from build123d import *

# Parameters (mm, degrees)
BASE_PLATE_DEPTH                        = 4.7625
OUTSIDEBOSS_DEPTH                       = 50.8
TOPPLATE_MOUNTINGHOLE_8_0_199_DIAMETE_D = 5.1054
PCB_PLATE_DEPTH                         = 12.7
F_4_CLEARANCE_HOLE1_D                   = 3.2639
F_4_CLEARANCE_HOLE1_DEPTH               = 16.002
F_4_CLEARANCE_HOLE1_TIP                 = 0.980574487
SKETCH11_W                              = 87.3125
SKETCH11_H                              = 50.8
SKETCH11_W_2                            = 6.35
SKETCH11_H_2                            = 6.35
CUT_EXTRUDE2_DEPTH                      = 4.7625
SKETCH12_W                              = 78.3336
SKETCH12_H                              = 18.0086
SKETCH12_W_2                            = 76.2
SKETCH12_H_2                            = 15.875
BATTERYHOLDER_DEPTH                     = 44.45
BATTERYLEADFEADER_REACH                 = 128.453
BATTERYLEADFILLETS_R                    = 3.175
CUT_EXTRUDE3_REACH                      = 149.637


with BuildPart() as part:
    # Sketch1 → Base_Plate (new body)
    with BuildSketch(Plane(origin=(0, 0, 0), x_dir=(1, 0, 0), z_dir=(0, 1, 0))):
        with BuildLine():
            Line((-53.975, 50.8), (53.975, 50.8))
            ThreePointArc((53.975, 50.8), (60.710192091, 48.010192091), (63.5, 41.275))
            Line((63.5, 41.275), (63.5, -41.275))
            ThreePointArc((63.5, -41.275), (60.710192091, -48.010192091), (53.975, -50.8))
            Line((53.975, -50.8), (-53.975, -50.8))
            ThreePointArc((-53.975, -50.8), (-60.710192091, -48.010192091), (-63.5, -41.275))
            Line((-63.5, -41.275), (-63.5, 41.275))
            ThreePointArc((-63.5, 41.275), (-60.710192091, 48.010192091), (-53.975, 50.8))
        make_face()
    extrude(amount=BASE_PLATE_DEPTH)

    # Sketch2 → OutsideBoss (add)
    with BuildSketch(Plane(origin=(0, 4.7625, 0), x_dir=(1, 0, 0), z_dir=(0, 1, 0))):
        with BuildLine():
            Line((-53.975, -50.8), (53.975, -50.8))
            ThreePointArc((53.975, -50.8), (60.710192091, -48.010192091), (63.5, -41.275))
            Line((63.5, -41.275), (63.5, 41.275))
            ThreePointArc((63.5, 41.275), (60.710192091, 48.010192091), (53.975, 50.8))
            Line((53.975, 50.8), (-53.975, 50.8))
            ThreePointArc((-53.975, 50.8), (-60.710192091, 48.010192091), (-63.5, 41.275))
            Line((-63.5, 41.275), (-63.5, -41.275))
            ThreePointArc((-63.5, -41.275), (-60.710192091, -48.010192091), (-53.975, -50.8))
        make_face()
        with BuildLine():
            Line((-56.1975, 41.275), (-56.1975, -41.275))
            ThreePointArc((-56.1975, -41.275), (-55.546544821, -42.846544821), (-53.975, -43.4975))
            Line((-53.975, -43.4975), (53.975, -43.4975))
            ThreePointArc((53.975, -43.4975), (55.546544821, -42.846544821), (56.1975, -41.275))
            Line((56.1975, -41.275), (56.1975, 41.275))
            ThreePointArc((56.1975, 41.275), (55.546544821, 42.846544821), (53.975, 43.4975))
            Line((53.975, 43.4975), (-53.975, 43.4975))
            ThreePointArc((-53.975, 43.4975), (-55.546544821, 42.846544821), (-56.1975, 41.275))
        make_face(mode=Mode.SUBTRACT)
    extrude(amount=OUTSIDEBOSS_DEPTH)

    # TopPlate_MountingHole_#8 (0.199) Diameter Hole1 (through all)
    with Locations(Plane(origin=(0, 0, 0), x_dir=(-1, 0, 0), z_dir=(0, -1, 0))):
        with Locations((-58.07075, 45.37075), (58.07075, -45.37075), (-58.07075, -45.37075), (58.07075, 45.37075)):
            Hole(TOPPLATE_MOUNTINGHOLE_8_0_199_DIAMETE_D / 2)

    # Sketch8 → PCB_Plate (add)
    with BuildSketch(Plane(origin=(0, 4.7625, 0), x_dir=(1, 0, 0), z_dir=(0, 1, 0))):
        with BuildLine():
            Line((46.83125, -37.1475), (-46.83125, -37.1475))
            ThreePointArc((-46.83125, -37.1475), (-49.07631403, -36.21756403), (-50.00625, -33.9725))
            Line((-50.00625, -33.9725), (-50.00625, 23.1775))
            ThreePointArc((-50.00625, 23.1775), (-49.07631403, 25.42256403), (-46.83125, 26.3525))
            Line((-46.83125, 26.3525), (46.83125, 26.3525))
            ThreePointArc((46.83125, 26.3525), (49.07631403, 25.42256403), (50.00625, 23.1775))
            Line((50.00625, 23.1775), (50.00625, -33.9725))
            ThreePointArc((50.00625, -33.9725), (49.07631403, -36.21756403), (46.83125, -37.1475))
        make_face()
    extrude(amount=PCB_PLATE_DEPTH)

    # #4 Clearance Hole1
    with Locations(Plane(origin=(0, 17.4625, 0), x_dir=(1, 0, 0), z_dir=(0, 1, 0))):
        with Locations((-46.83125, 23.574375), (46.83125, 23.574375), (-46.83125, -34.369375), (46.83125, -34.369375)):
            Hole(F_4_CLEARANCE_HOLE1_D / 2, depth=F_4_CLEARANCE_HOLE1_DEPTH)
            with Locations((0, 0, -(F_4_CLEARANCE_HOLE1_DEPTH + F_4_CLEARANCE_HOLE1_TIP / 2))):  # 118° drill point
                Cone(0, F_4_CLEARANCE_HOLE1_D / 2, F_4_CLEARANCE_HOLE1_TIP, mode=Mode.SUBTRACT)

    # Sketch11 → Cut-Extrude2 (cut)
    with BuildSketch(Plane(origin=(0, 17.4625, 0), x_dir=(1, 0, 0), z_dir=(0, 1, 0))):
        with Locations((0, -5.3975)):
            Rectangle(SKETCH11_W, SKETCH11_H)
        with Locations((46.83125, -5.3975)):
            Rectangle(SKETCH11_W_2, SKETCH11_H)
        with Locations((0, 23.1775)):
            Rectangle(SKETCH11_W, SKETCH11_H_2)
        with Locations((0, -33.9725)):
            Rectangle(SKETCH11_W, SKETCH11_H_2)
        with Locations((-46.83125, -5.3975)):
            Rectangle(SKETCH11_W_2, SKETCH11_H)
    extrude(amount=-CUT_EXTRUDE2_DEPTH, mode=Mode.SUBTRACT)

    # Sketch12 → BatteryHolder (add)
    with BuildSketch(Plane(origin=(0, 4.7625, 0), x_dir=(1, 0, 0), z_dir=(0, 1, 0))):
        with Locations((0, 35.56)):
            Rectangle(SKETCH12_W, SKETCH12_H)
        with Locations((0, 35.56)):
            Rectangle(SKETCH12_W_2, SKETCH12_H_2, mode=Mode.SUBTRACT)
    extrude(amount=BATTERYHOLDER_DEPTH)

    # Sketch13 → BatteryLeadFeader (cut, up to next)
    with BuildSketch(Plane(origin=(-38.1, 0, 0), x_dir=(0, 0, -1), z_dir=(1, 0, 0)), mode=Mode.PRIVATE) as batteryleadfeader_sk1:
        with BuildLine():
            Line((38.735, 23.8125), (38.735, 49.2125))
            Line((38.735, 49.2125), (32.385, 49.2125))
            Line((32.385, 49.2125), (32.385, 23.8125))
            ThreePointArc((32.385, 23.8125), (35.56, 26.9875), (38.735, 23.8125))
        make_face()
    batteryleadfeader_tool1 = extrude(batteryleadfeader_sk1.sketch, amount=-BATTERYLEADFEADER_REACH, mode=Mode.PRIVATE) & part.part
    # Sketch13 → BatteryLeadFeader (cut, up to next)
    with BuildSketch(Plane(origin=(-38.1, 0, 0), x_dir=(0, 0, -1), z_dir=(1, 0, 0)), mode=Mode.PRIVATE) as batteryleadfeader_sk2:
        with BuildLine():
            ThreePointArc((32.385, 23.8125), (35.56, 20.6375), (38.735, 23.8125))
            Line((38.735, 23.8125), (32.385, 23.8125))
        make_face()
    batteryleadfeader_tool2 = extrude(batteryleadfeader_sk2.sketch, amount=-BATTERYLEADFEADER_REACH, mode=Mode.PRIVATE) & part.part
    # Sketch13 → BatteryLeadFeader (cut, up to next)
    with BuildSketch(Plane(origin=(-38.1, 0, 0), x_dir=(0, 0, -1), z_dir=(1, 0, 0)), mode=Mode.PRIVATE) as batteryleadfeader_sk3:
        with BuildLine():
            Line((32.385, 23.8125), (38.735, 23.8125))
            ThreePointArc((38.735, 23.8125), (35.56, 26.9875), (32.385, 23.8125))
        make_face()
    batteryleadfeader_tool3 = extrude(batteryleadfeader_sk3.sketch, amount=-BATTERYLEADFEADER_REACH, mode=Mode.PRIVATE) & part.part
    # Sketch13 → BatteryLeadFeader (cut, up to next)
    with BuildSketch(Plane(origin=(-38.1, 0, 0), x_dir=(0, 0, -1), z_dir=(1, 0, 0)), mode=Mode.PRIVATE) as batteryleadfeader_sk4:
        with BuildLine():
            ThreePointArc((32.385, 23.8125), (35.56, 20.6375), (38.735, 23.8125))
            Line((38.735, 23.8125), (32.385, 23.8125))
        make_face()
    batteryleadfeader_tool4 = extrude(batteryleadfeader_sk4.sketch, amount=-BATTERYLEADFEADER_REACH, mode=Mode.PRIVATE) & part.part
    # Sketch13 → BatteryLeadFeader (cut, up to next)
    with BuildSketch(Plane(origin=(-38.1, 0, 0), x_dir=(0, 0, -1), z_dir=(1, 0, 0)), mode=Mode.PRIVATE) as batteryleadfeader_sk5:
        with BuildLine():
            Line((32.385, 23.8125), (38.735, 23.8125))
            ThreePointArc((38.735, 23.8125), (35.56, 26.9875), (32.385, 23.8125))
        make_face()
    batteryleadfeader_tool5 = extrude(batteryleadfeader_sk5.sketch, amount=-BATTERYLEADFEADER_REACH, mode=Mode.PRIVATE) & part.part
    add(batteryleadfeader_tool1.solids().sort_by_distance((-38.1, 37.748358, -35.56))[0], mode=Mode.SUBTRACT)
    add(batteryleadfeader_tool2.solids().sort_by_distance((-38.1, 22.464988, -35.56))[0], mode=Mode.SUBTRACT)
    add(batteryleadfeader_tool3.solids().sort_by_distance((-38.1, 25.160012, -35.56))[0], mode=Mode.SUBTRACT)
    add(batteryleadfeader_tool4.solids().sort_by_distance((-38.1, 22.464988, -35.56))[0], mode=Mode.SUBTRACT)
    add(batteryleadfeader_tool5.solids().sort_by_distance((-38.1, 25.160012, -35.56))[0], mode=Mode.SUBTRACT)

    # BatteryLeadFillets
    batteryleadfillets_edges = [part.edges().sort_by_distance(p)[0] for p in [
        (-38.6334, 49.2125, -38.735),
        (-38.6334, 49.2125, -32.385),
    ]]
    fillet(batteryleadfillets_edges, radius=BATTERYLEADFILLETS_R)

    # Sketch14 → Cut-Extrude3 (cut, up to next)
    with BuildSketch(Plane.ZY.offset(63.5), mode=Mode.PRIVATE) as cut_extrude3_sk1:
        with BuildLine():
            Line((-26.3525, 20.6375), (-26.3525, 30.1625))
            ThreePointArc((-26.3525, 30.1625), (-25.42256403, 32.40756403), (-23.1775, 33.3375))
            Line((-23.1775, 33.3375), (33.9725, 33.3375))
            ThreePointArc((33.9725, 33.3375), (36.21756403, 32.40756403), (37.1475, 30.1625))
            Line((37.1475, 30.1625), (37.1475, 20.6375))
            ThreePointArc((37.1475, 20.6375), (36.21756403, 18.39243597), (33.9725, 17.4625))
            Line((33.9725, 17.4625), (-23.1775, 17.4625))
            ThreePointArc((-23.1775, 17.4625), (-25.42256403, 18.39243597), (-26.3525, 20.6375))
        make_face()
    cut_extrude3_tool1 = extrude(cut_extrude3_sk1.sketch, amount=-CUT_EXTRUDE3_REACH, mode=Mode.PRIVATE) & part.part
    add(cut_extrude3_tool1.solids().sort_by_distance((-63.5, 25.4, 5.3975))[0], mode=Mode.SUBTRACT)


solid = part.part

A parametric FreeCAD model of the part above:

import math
import FreeCAD as App
import Part
import Sketcher
from FreeCAD import Vector
Q = App.Units.Quantity


def edges_at(feature, points):
    """Names of the edges that pass closest to the given points."""
    edges = feature.Shape.Edges
    near = lambda p: min(range(len(edges)), key=lambda i: edges[i].distToShape(Part.Vertex(*p))[0])
    return sorted({f"Edge{near(p) + 1}" for p in points})

doc = App.newDocument("Part")
body = doc.addObject("PartDesign::Body", "Body")
body.AllowCompound = True

sketch1 = body.newObject("Sketcher::SketchObject", "Sketch")
sketch1.AttachmentSupport = (doc.getObject("XZ_Plane"), [""])
sketch1.MapMode = "FlatFace"
sketch1.addGeometry([
    Part.LineSegment(Vector(54, -51, 0), Vector(-54, -51, 0)),
    Part.ArcOfCircle(Part.Circle(Vector(-54, -41, 0), Vector(0, 0, 1), 10), math.radians(180), math.radians(270)),
    Part.LineSegment(Vector(-64, -41, 0), Vector(-64, 41, 0)),
    Part.ArcOfCircle(Part.Circle(Vector(-54, 41, 0), Vector(0, 0, 1), 10), math.radians(90), math.radians(180)),
    Part.LineSegment(Vector(-54, 51, 0), Vector(54, 51, 0)),
    Part.ArcOfCircle(Part.Circle(Vector(54, 41, 0), Vector(0, 0, 1), 10), math.radians(0), math.radians(90)),
    Part.LineSegment(Vector(64, 41, 0), Vector(64, -41, 0)),
    Part.ArcOfCircle(Part.Circle(Vector(54, -41, 0), Vector(0, 0, 1), 10), math.radians(-90), math.radians(0)),
], False)
sketch1.addConstraint([
    Sketcher.Constraint("Tangent", 0, 2, 1, 2),
    Sketcher.Constraint("Tangent", 1, 1, 2, 1),
    Sketcher.Constraint("Tangent", 2, 2, 3, 2),
    Sketcher.Constraint("Tangent", 3, 1, 4, 1),
    Sketcher.Constraint("Tangent", 4, 2, 5, 2),
    Sketcher.Constraint("Tangent", 5, 1, 6, 1),
    Sketcher.Constraint("Tangent", 6, 2, 7, 2),
    Sketcher.Constraint("Tangent", 7, 1, 0, 1),
    Sketcher.Constraint("Horizontal", 0),
    Sketcher.Constraint("Vertical", 2),
    Sketcher.Constraint("Horizontal", 4),
    Sketcher.Constraint("Vertical", 6),
    Sketcher.Constraint("Equal", 1, 3),
    Sketcher.Constraint("Equal", 3, 5),
    Sketcher.Constraint("Equal", 5, 7),
    Sketcher.Constraint("Symmetric", 1, 3, 5, 3, -1, 1),
    Sketcher.Constraint("DistanceY", 0, 2, -1, 1, Q("2 in")),
    Sketcher.Constraint("Radius", 1, Q("0.375 in")),
    Sketcher.Constraint("DistanceX", 0, 2, 0, 1, Q("4.25 in")),
])
pad1 = body.newObject("PartDesign::Pad", "Pad")
pad1.Profile = sketch1
pad1.Length = Q("0.1875 in")
pad1.Reversed = True

sketch2 = body.newObject("Sketcher::SketchObject", "Sketch001")
sketch2.AttachmentSupport = (doc.getObject("XZ_Plane"), [""])
sketch2.MapMode = "FlatFace"
sketch2.AttachmentOffset = App.Placement(Vector(0, 0, -0.1875 * 25.4), App.Rotation())
sketch2.addGeometry([
    Part.LineSegment(Vector(-54, 50.8, 0), Vector(54, 50.8, 0)),
    Part.ArcOfCircle(Part.Circle(Vector(54, 41.3, 0), Vector(0, 0, 1), 9.5), math.radians(0), math.radians(90)),
    Part.LineSegment(Vector(63.5, 41.3, 0), Vector(63.5, -41.3, 0)),
    Part.ArcOfCircle(Part.Circle(Vector(54, -41.3, 0), Vector(0, 0, 1), 9.5), math.radians(-90), math.radians(0)),
    Part.LineSegment(Vector(54, -50.8, 0), Vector(-54, -50.8, 0)),
    Part.ArcOfCircle(Part.Circle(Vector(-54, -41.3, 0), Vector(0, 0, 1), 9.5), math.radians(180), math.radians(270)),
    Part.LineSegment(Vector(-63.5, -41.3, 0), Vector(-63.5, 41.3, 0)),
    Part.ArcOfCircle(Part.Circle(Vector(-54, 41.3, 0), Vector(0, 0, 1), 9.5), math.radians(90), math.radians(180)),
    Part.LineSegment(Vector(-56.2, 41.3, 0), Vector(-56.2, -41.3, 0)),
    Part.ArcOfCircle(Part.Circle(Vector(-54, -41.3, 0), Vector(0, 0, 1), 2.2), math.radians(-180), math.radians(-90)),
    Part.LineSegment(Vector(-54, -43.5, 0), Vector(54, -43.5, 0)),
    Part.ArcOfCircle(Part.Circle(Vector(54, -41.3, 0), Vector(0, 0, 1), 2.2), math.radians(-90), math.radians(0)),
    Part.LineSegment(Vector(56.2, -41.3, 0), Vector(56.2, 41.3, 0)),
    Part.ArcOfCircle(Part.Circle(Vector(54, 41.3, 0), Vector(0, 0, 1), 2.2), math.radians(0), math.radians(90)),
    Part.LineSegment(Vector(54, 43.5, 0), Vector(-54, 43.5, 0)),
    Part.ArcOfCircle(Part.Circle(Vector(-54, 41.3, 0), Vector(0, 0, 1), 2.2), math.radians(90), math.radians(180)),
], False)
sketch2.addConstraint([
    Sketcher.Constraint("Tangent", 0, 2, 1, 2),
    Sketcher.Constraint("Tangent", 1, 1, 2, 1),
    Sketcher.Constraint("Tangent", 2, 2, 3, 2),
    Sketcher.Constraint("Tangent", 3, 1, 4, 1),
    Sketcher.Constraint("Tangent", 4, 2, 5, 2),
    Sketcher.Constraint("Tangent", 5, 1, 6, 1),
    Sketcher.Constraint("Tangent", 6, 2, 7, 2),
    Sketcher.Constraint("Tangent", 7, 1, 0, 1),
    Sketcher.Constraint("Tangent", 8, 2, 9, 1),
    Sketcher.Constraint("Tangent", 9, 2, 10, 1),
    Sketcher.Constraint("Tangent", 10, 2, 11, 1),
    Sketcher.Constraint("Tangent", 11, 2, 12, 1),
    Sketcher.Constraint("Tangent", 12, 2, 13, 1),
    Sketcher.Constraint("Tangent", 13, 2, 14, 1),
    Sketcher.Constraint("Tangent", 14, 2, 15, 1),
    Sketcher.Constraint("Tangent", 15, 2, 8, 1),
    Sketcher.Constraint("Horizontal", 0),
    Sketcher.Constraint("Vertical", 2),
    Sketcher.Constraint("Horizontal", 4),
    Sketcher.Constraint("Vertical", 6),
    Sketcher.Constraint("Vertical", 8),
    Sketcher.Constraint("Horizontal", 10),
    Sketcher.Constraint("Vertical", 12),
    Sketcher.Constraint("Horizontal", 14),
    Sketcher.Constraint("Coincident", 9, 3, 5, 3),
    Sketcher.Constraint("Coincident", 11, 3, 3, 3),
    Sketcher.Constraint("Coincident", 13, 3, 1, 3),
    Sketcher.Constraint("Equal", 1, 3),
    Sketcher.Constraint("Equal", 3, 5),
    Sketcher.Constraint("Equal", 5, 7),
    Sketcher.Constraint("Equal", 13, 15),
    Sketcher.Constraint("Symmetric", 1, 3, 5, 3, -1, 1),
    Sketcher.Constraint("DistanceY", -1, 1, 0, 2, Q("2 in")),
    Sketcher.Constraint("Radius", 1, Q("0.375 in")),
    Sketcher.Constraint("DistanceX", 0, 1, 0, 2, Q("4.25 in")),
    Sketcher.Constraint("Radius", 9, Q("0.0875 in")),
])
pad2 = body.newObject("PartDesign::Pad", "Pad001")
pad2.Profile = sketch2
pad2.Length = Q("2 in")
pad2.Reversed = True

sketch3 = body.newObject("Sketcher::SketchObject", "Sketch002")
sketch3.AttachmentSupport = (doc.getObject("XZ_Plane"), [""])
sketch3.MapMode = "FlatFace"
sketch3.addGeometry([
    Part.Circle(Vector(58.1, -45.4, 0), Vector(0, 0, 1), 2.6),
    Part.Circle(Vector(-58.1, 45.4, 0), Vector(0, 0, 1), 2.6),
    Part.Circle(Vector(58.1, 45.4, 0), Vector(0, 0, 1), 2.6),
    Part.Circle(Vector(-58.1, -45.4, 0), Vector(0, 0, 1), 2.6),
], False)
sketch3.addConstraint([
    Sketcher.Constraint("Equal", 0, 1),
    Sketcher.Constraint("Equal", 1, 2),
    Sketcher.Constraint("Equal", 2, 3),
    Sketcher.Constraint("Symmetric", 0, 3, 1, 3, -1, 1),
    Sketcher.Constraint("Symmetric", 2, 3, 3, 3, -1, 1),
    Sketcher.Constraint("Symmetric", 1, 3, 2, 3, -2),
    Sketcher.Constraint("Diameter", 0, Q("0.201 in")),
    Sketcher.Constraint("DistanceX", 1, 3, 0, 3, Q("4.5725 in")),
    Sketcher.Constraint("DistanceY", 0, 3, 1, 3, Q("3.5725 in")),
])
doc.recompute()
hole = body.newObject("PartDesign::Hole", "Hole")
hole.Profile = sketch3
hole.ThreadType = "None"
hole.Diameter = Q("0.201 in")
hole.DepthType = "ThroughAll"

sketch4 = body.newObject("Sketcher::SketchObject", "Sketch003")
sketch4.AttachmentSupport = (doc.getObject("XZ_Plane"), [""])
sketch4.MapMode = "FlatFace"
sketch4.AttachmentOffset = App.Placement(Vector(0, 0, -0.1875 * 25.4), App.Rotation())
sketch4.addGeometry([
    Part.LineSegment(Vector(-46.8, 37.1, 0), Vector(46.8, 37.1, 0)),
    Part.ArcOfCircle(Part.Circle(Vector(46.8, 34, 0), Vector(0, 0, 1), 3.2), math.radians(0), math.radians(90)),
    Part.LineSegment(Vector(50, 34, 0), Vector(50, -23.2, 0)),
    Part.ArcOfCircle(Part.Circle(Vector(46.8, -23.2, 0), Vector(0, 0, 1), 3.2), math.radians(-90), math.radians(0)),
    Part.LineSegment(Vector(46.8, -26.4, 0), Vector(-46.8, -26.4, 0)),
    Part.ArcOfCircle(Part.Circle(Vector(-46.8, -23.2, 0), Vector(0, 0, 1), 3.2), math.radians(-180), math.radians(-90)),
    Part.LineSegment(Vector(-50, -23.2, 0), Vector(-50, 34, 0)),
    Part.ArcOfCircle(Part.Circle(Vector(-46.8, 34, 0), Vector(0, 0, 1), 3.2), math.radians(90), math.radians(180)),
], False)
sketch4.addConstraint([
    Sketcher.Constraint("Tangent", 0, 2, 1, 2),
    Sketcher.Constraint("Tangent", 1, 1, 2, 1),
    Sketcher.Constraint("Tangent", 2, 2, 3, 2),
    Sketcher.Constraint("Tangent", 3, 1, 4, 1),
    Sketcher.Constraint("Tangent", 4, 2, 5, 2),
    Sketcher.Constraint("Tangent", 5, 1, 6, 1),
    Sketcher.Constraint("Tangent", 6, 2, 7, 2),
    Sketcher.Constraint("Tangent", 7, 1, 0, 1),
    Sketcher.Constraint("Horizontal", 0),
    Sketcher.Constraint("Vertical", 2),
    Sketcher.Constraint("Horizontal", 4),
    Sketcher.Constraint("Vertical", 6),
    Sketcher.Constraint("Equal", 1, 3),
    Sketcher.Constraint("Equal", 3, 5),
    Sketcher.Constraint("Equal", 5, 7),
    Sketcher.Constraint("Radius", 1, Q("0.125 in")),
    Sketcher.Constraint("DistanceY", 2, 2, 2, 1, Q("2.25 in")),
    Sketcher.Constraint("DistanceX", 0, 1, 0, 2, Q("3.6875 in")),
    Sketcher.Constraint("DistanceX", -1, 1, 1, 3, Q("1.84375 in")),
    Sketcher.Constraint("DistanceY", -1, 1, 1, 3, Q("1.3375 in")),
])
pad3 = body.newObject("PartDesign::Pad", "Pad002")
pad3.Profile = sketch4
pad3.Length = Q("0.5 in")
pad3.Reversed = True

sketch5 = body.newObject("Sketcher::SketchObject", "Sketch004")
sketch5.AttachmentSupport = (doc.getObject("XZ_Plane"), [""])
sketch5.MapMode = "FlatFace"
sketch5.AttachmentOffset = App.Placement(Vector(0, 0, -0.6875 * 25.4), App.Rotation())
sketch5.addGeometry([
    Part.Circle(Vector(-46.8, -23.6, 0), Vector(0, 0, 1), 1.6),
    Part.Circle(Vector(46.8, -23.6, 0), Vector(0, 0, 1), 1.6),
    Part.Circle(Vector(-46.8, 34.4, 0), Vector(0, 0, 1), 1.6),
    Part.Circle(Vector(46.8, 34.4, 0), Vector(0, 0, 1), 1.6),
], False)
sketch5.addConstraint([
    Sketcher.Constraint("Equal", 0, 1),
    Sketcher.Constraint("Equal", 1, 2),
    Sketcher.Constraint("Equal", 2, 3),
    Sketcher.Constraint("Symmetric", 0, 3, 1, 3, -2),
    Sketcher.Constraint("Symmetric", 2, 3, 3, 3, -2),
    Sketcher.Constraint("Vertical", 0, 3, 2, 3),
    Sketcher.Constraint("Diameter", 0, Q("0.1285 in")),
    Sketcher.Constraint("DistanceX", 0, 3, -1, 1, Q("1.84375 in")),
    Sketcher.Constraint("DistanceY", 0, 3, 2, 3, Q("2.28125 in")),
    Sketcher.Constraint("DistanceY", 0, 3, -1, 1, 23.574375),
])
doc.recompute()
hole2 = body.newObject("PartDesign::Hole", "Hole001")
hole2.Profile = sketch5
hole2.ThreadType = "None"
hole2.Diameter = Q("0.1285 in")
hole2.DepthType = "Dimension"
hole2.Depth = Q("0.63 in")
hole2.DrillPoint = "Angled"
hole2.DrillPointAngle = 118
hole2.Reversed = True

sketch6 = body.newObject("Sketcher::SketchObject", "Sketch005")
sketch6.AttachmentSupport = (doc.getObject("XZ_Plane"), [""])
sketch6.MapMode = "FlatFace"
sketch6.AttachmentOffset = App.Placement(Vector(0, 0, -0.6875 * 25.4), App.Rotation())
sketch6.addGeometry([
    Part.LineSegment(Vector(44, 31, 0), Vector(50, 31, 0)),
    Part.LineSegment(Vector(50, 31, 0), Vector(50, -20, 0)),
    Part.LineSegment(Vector(50, -20, 0), Vector(44, -20, 0)),
    Part.LineSegment(Vector(44, -20, 0), Vector(44, -26, 0)),
    Part.LineSegment(Vector(44, -26, 0), Vector(-44, -26, 0)),
    Part.LineSegment(Vector(-44, -26, 0), Vector(-44, -20, 0)),
    Part.LineSegment(Vector(-44, -20, 0), Vector(-50, -20, 0)),
    Part.LineSegment(Vector(-50, -20, 0), Vector(-50, 31, 0)),
    Part.LineSegment(Vector(-50, 31, 0), Vector(-44, 31, 0)),
    Part.LineSegment(Vector(-44, 31, 0), Vector(-44, 37, 0)),
    Part.LineSegment(Vector(-44, 37, 0), Vector(44, 37, 0)),
    Part.LineSegment(Vector(44, 37, 0), Vector(44, 31, 0)),
], False)
sketch6.addConstraint([
    Sketcher.Constraint("Coincident", 0, 2, 1, 1),
    Sketcher.Constraint("Coincident", 1, 2, 2, 1),
    Sketcher.Constraint("Coincident", 2, 2, 3, 1),
    Sketcher.Constraint("Coincident", 3, 2, 4, 1),
    Sketcher.Constraint("Coincident", 4, 2, 5, 1),
    Sketcher.Constraint("Coincident", 5, 2, 6, 1),
    Sketcher.Constraint("Coincident", 6, 2, 7, 1),
    Sketcher.Constraint("Coincident", 7, 2, 8, 1),
    Sketcher.Constraint("Coincident", 8, 2, 9, 1),
    Sketcher.Constraint("Coincident", 9, 2, 10, 1),
    Sketcher.Constraint("Coincident", 10, 2, 11, 1),
    Sketcher.Constraint("Coincident", 11, 2, 0, 1),
    Sketcher.Constraint("Horizontal", 0),
    Sketcher.Constraint("Vertical", 1),
    Sketcher.Constraint("Horizontal", 2),
    Sketcher.Constraint("Vertical", 3),
    Sketcher.Constraint("Horizontal", 4),
    Sketcher.Constraint("Vertical", 5),
    Sketcher.Constraint("Horizontal", 6),
    Sketcher.Constraint("Vertical", 7),
    Sketcher.Constraint("Horizontal", 8),
    Sketcher.Constraint("Vertical", 9),
    Sketcher.Constraint("Horizontal", 10),
    Sketcher.Constraint("Vertical", 11),
    Sketcher.Constraint("Symmetric", 2, 2, 5, 2, -2),
    Sketcher.Constraint("Symmetric", 0, 2, 7, 2, -2),
    Sketcher.Constraint("Vertical", 5, 2, 8, 2),
    Sketcher.Constraint("Vertical", 3, 2, 10, 2),
    Sketcher.Constraint("Equal", 8, 3),
    Sketcher.Constraint("Equal", 5, 9),
    Sketcher.Constraint("DistanceY", 1, 2, 1, 1, Q("2 in")),
    Sketcher.Constraint("DistanceX", 0, 1, 0, 2, Q("0.25 in")),
    Sketcher.Constraint("DistanceX", 4, 2, 4, 1, Q("3.4375 in")),
    Sketcher.Constraint("DistanceY", -1, 1, 0, 2, Q("1.2125 in")),
])
pocket1 = body.newObject("PartDesign::Pocket", "Pocket")
pocket1.Profile = sketch6
pocket1.Length = Q("0.1875 in")
pocket1.Reversed = True

sketch7 = body.newObject("Sketcher::SketchObject", "Sketch006")
sketch7.AttachmentSupport = (doc.getObject("XZ_Plane"), [""])
sketch7.MapMode = "FlatFace"
sketch7.AttachmentOffset = App.Placement(Vector(0, 0, -0.1875 * 25.4), App.Rotation())
sketch7.addGeometry([
    Part.LineSegment(Vector(-39, -45, 0), Vector(-39, -27, 0)),
    Part.LineSegment(Vector(-39, -27, 0), Vector(39, -27, 0)),
    Part.LineSegment(Vector(39, -27, 0), Vector(39, -45, 0)),
    Part.LineSegment(Vector(39, -45, 0), Vector(-39, -45, 0)),
    Part.LineSegment(Vector(38, -28, 0), Vector(-38, -28, 0)),
    Part.LineSegment(Vector(-38, -28, 0), Vector(-38, -43, 0)),
    Part.LineSegment(Vector(-38, -43, 0), Vector(38, -43, 0)),
    Part.LineSegment(Vector(38, -43, 0), Vector(38, -28, 0)),
], False)
sketch7.addConstraint([
    Sketcher.Constraint("Coincident", 0, 2, 1, 1),
    Sketcher.Constraint("Coincident", 1, 2, 2, 1),
    Sketcher.Constraint("Coincident", 2, 2, 3, 1),
    Sketcher.Constraint("Coincident", 3, 2, 0, 1),
    Sketcher.Constraint("Coincident", 4, 2, 5, 1),
    Sketcher.Constraint("Coincident", 5, 2, 6, 1),
    Sketcher.Constraint("Coincident", 6, 2, 7, 1),
    Sketcher.Constraint("Coincident", 7, 2, 4, 1),
    Sketcher.Constraint("Vertical", 0),
    Sketcher.Constraint("Horizontal", 1),
    Sketcher.Constraint("Vertical", 2),
    Sketcher.Constraint("Horizontal", 3),
    Sketcher.Constraint("Horizontal", 4),
    Sketcher.Constraint("Vertical", 5),
    Sketcher.Constraint("Horizontal", 6),
    Sketcher.Constraint("Vertical", 7),
    Sketcher.Constraint("DistanceX", 4, 2, 4, 1, Q("3 in")),
    Sketcher.Constraint("DistanceX", 4, 2, -1, 1, Q("1.5 in")),
    Sketcher.Constraint("DistanceX", 1, 1, 1, 2, Q("3.084 in")),
    Sketcher.Constraint("DistanceY", 0, 1, 0, 2, Q("0.709 in")),
    Sketcher.Constraint("DistanceY", 5, 2, 5, 1, Q("0.625 in")),
    Sketcher.Constraint("DistanceX", 0, 2, -1, 1, Q("1.542 in")),
    Sketcher.Constraint("DistanceY", 4, 2, 0, 2, Q("0.042 in")),
    Sketcher.Constraint("DistanceY", 0, 2, -1, 1, Q("1.0455 in")),
])
pad4 = body.newObject("PartDesign::Pad", "Pad003")
pad4.Profile = sketch7
pad4.Length = Q("1.75 in")
pad4.Reversed = True

sketch8 = body.newObject("Sketcher::SketchObject", "Sketch007")
sketch8.AttachmentSupport = (doc.getObject("YZ_Plane"), [""])
sketch8.MapMode = "FlatFace"
sketch8.AttachmentOffset = App.Placement(Vector(0, 0, -1.5 * 25.4), App.Rotation())
sketch8.addGeometry([
    Part.LineSegment(Vector(23.8, -38.7, 0), Vector(49.2, -38.7, 0)),
    Part.LineSegment(Vector(49.2, -38.7, 0), Vector(49.2, -32.4, 0)),
    Part.LineSegment(Vector(49.2, -32.4, 0), Vector(23.8, -32.4, 0)),
    Part.ArcOfCircle(Part.Circle(Vector(23.8, -35.6, 0), Vector(0, 0, 1), 3.2), math.radians(-90), math.radians(90)),
], False)
sketch8.addConstraint([
    Sketcher.Constraint("Coincident", 0, 2, 1, 1),
    Sketcher.Constraint("Coincident", 1, 2, 2, 1),
    Sketcher.Constraint("Tangent", 2, 2, 3, 2),
    Sketcher.Constraint("Tangent", 3, 1, 0, 1),
    Sketcher.Constraint("Horizontal", 0),
    Sketcher.Constraint("Vertical", 1),
    Sketcher.Constraint("Horizontal", 2),
    Sketcher.Constraint("DistanceX", 0, 1, 0, 2, Q("1 in")),
    Sketcher.Constraint("Radius", 3, Q("0.125 in")),
    Sketcher.Constraint("DistanceY", 3, 3, -1, 1, Q("1.4 in")),
    Sketcher.Constraint("DistanceX", -1, 1, 3, 3, Q("0.9375 in")),
])
pocket2 = body.newObject("PartDesign::Pocket", "Pocket001")
pocket2.Profile = sketch8
pocket2.Type = "UpToFirst"

sketch9 = body.newObject("Sketcher::SketchObject", "Sketch008")
sketch9.AttachmentSupport = (doc.getObject("YZ_Plane"), [""])
sketch9.MapMode = "FlatFace"
sketch9.AttachmentOffset = App.Placement(Vector(0, 0, -1.5 * 25.4), App.Rotation())
sketch9.addGeometry([
    Part.ArcOfCircle(Part.Circle(Vector(23.8, -35.6, 0), Vector(0, 0, 1), 3.2), math.radians(90), math.radians(270)),
    Part.LineSegment(Vector(23.8, -38.7, 0), Vector(23.8, -32.4, 0)),
], False)
sketch9.addConstraint([
    Sketcher.Constraint("Coincident", 0, 1, 1, 2),
    Sketcher.Constraint("Coincident", 1, 1, 0, 2),
    Sketcher.Constraint("Vertical", 1),
    Sketcher.Constraint("Radius", 0, Q("0.125 in")),
    Sketcher.Constraint("DistanceY", 0, 3, -1, 1, Q("1.4 in")),
    Sketcher.Constraint("DistanceX", -1, 1, 0, 3, Q("0.9375 in")),
    Sketcher.Constraint("DistanceX", -1, 1, 0, 1, Q("0.9375 in")),
])
pocket3 = body.newObject("PartDesign::Pocket", "Pocket002")
pocket3.Profile = sketch9
pocket3.Type = "UpToFirst"

sketch10 = body.newObject("Sketcher::SketchObject", "Sketch009")
sketch10.AttachmentSupport = (doc.getObject("YZ_Plane"), [""])
sketch10.MapMode = "FlatFace"
sketch10.AttachmentOffset = App.Placement(Vector(0, 0, -1.5 * 25.4), App.Rotation())
sketch10.addGeometry([
    Part.LineSegment(Vector(23.8, -32.4, 0), Vector(23.8, -38.7, 0)),
    Part.ArcOfCircle(Part.Circle(Vector(23.8, -35.6, 0), Vector(0, 0, 1), 3.2), math.radians(-90), math.radians(90)),
], False)
sketch10.addConstraint([
    Sketcher.Constraint("Coincident", 0, 1, 1, 2),
    Sketcher.Constraint("Coincident", 1, 1, 0, 2),
    Sketcher.Constraint("Vertical", 0),
    Sketcher.Constraint("Vertical", 1, 3, 0, 1),
    Sketcher.Constraint("Radius", 1, Q("0.125 in")),
    Sketcher.Constraint("DistanceY", 1, 3, -1, 1, Q("1.4 in")),
    Sketcher.Constraint("DistanceX", -1, 1, 1, 3, Q("0.9375 in")),
])
pocket4 = body.newObject("PartDesign::Pocket", "Pocket003")
pocket4.Profile = sketch10
pocket4.Type = "UpToFirst"

sketch11 = body.newObject("Sketcher::SketchObject", "Sketch010")
sketch11.AttachmentSupport = (doc.getObject("YZ_Plane"), [""])
sketch11.MapMode = "FlatFace"
sketch11.AttachmentOffset = App.Placement(Vector(0, 0, -1.5 * 25.4), App.Rotation())
sketch11.addGeometry([
    Part.ArcOfCircle(Part.Circle(Vector(23.8, -35.6, 0), Vector(0, 0, 1), 3.2), math.radians(90), math.radians(270)),
    Part.LineSegment(Vector(23.8, -38.7, 0), Vector(23.8, -32.4, 0)),
], False)
sketch11.addConstraint([
    Sketcher.Constraint("Coincident", 0, 1, 1, 2),
    Sketcher.Constraint("Coincident", 1, 1, 0, 2),
    Sketcher.Constraint("Vertical", 1),
    Sketcher.Constraint("Radius", 0, Q("0.125 in")),
    Sketcher.Constraint("DistanceY", 0, 3, -1, 1, Q("1.4 in")),
    Sketcher.Constraint("DistanceX", -1, 1, 0, 3, Q("0.9375 in")),
    Sketcher.Constraint("DistanceX", -1, 1, 0, 1, Q("0.9375 in")),
])
pocket5 = body.newObject("PartDesign::Pocket", "Pocket004")
pocket5.Profile = sketch11
pocket5.Type = "UpToFirst"

sketch12 = body.newObject("Sketcher::SketchObject", "Sketch011")
sketch12.AttachmentSupport = (doc.getObject("YZ_Plane"), [""])
sketch12.MapMode = "FlatFace"
sketch12.AttachmentOffset = App.Placement(Vector(0, 0, -1.5 * 25.4), App.Rotation())
sketch12.addGeometry([
    Part.LineSegment(Vector(23.8, -32.4, 0), Vector(23.8, -38.7, 0)),
    Part.ArcOfCircle(Part.Circle(Vector(23.8, -35.6, 0), Vector(0, 0, 1), 3.2), math.radians(-90), math.radians(90)),
], False)
sketch12.addConstraint([
    Sketcher.Constraint("Coincident", 0, 1, 1, 2),
    Sketcher.Constraint("Coincident", 1, 1, 0, 2),
    Sketcher.Constraint("Vertical", 0),
    Sketcher.Constraint("Vertical", 1, 3, 0, 1),
    Sketcher.Constraint("Radius", 1, Q("0.125 in")),
    Sketcher.Constraint("DistanceY", 1, 3, -1, 1, Q("1.4 in")),
    Sketcher.Constraint("DistanceX", -1, 1, 1, 3, Q("0.9375 in")),
])
pocket6 = body.newObject("PartDesign::Pocket", "Pocket005")
pocket6.Profile = sketch12
pocket6.Type = "UpToFirst"
doc.recompute()

fillet = body.newObject("PartDesign::Fillet", "Fillet")
fillet.Base = (pocket6, edges_at(pocket6, [(-38.633, 49.212, -38.735), (-38.633, 49.212, -32.385)]))
fillet.Radius = Q("0.125 in")

sketch13 = body.newObject("Sketcher::SketchObject", "Sketch012")
sketch13.AttachmentSupport = (doc.getObject("YZ_Plane"), [""])
sketch13.MapMode = "FlatFace"
sketch13.AttachmentOffset = App.Placement(Vector(0, 0, -2.5 * 25.4), App.Rotation())
sketch13.addGeometry([
    Part.LineSegment(Vector(30.2, -26.4, 0), Vector(20.6, -26.4, 0)),
    Part.ArcOfCircle(Part.Circle(Vector(20.6, -23.2, 0), Vector(0, 0, 1), 3.2), math.radians(-180), math.radians(-90)),
    Part.LineSegment(Vector(17.5, -23.2, 0), Vector(17.5, 34, 0)),
    Part.ArcOfCircle(Part.Circle(Vector(20.6, 34, 0), Vector(0, 0, 1), 3.2), math.radians(90), math.radians(180)),
    Part.LineSegment(Vector(20.6, 37.1, 0), Vector(30.2, 37.1, 0)),
    Part.ArcOfCircle(Part.Circle(Vector(30.2, 34, 0), Vector(0, 0, 1), 3.2), math.radians(0), math.radians(90)),
    Part.LineSegment(Vector(33.3, 34, 0), Vector(33.3, -23.2, 0)),
    Part.ArcOfCircle(Part.Circle(Vector(30.2, -23.2, 0), Vector(0, 0, 1), 3.2), math.radians(-90), math.radians(0)),
], False)
sketch13.addConstraint([
    Sketcher.Constraint("Tangent", 0, 2, 1, 2),
    Sketcher.Constraint("Tangent", 1, 1, 2, 1),
    Sketcher.Constraint("Tangent", 2, 2, 3, 2),
    Sketcher.Constraint("Tangent", 3, 1, 4, 1),
    Sketcher.Constraint("Tangent", 4, 2, 5, 2),
    Sketcher.Constraint("Tangent", 5, 1, 6, 1),
    Sketcher.Constraint("Tangent", 6, 2, 7, 2),
    Sketcher.Constraint("Tangent", 7, 1, 0, 1),
    Sketcher.Constraint("Horizontal", 0),
    Sketcher.Constraint("Vertical", 2),
    Sketcher.Constraint("Horizontal", 4),
    Sketcher.Constraint("Vertical", 6),
    Sketcher.Constraint("Equal", 1, 3),
    Sketcher.Constraint("Equal", 3, 5),
    Sketcher.Constraint("Equal", 5, 7),
    Sketcher.Constraint("Radius", 1, Q("0.125 in")),
    Sketcher.Constraint("DistanceY", 2, 1, 2, 2, Q("2.25 in")),
    Sketcher.Constraint("DistanceX", 1, 1, 7, 3, Q("0.5 in")),
    Sketcher.Constraint("DistanceX", -1, 1, 1, 3, Q("0.8125 in")),
    Sketcher.Constraint("DistanceY", 1, 3, -1, 1, Q("0.9125 in")),
])
pocket7 = body.newObject("PartDesign::Pocket", "Pocket006")
pocket7.Profile = sketch13
pocket7.Type = "UpToFirst"
pocket7.Reversed = True

doc.recompute()
